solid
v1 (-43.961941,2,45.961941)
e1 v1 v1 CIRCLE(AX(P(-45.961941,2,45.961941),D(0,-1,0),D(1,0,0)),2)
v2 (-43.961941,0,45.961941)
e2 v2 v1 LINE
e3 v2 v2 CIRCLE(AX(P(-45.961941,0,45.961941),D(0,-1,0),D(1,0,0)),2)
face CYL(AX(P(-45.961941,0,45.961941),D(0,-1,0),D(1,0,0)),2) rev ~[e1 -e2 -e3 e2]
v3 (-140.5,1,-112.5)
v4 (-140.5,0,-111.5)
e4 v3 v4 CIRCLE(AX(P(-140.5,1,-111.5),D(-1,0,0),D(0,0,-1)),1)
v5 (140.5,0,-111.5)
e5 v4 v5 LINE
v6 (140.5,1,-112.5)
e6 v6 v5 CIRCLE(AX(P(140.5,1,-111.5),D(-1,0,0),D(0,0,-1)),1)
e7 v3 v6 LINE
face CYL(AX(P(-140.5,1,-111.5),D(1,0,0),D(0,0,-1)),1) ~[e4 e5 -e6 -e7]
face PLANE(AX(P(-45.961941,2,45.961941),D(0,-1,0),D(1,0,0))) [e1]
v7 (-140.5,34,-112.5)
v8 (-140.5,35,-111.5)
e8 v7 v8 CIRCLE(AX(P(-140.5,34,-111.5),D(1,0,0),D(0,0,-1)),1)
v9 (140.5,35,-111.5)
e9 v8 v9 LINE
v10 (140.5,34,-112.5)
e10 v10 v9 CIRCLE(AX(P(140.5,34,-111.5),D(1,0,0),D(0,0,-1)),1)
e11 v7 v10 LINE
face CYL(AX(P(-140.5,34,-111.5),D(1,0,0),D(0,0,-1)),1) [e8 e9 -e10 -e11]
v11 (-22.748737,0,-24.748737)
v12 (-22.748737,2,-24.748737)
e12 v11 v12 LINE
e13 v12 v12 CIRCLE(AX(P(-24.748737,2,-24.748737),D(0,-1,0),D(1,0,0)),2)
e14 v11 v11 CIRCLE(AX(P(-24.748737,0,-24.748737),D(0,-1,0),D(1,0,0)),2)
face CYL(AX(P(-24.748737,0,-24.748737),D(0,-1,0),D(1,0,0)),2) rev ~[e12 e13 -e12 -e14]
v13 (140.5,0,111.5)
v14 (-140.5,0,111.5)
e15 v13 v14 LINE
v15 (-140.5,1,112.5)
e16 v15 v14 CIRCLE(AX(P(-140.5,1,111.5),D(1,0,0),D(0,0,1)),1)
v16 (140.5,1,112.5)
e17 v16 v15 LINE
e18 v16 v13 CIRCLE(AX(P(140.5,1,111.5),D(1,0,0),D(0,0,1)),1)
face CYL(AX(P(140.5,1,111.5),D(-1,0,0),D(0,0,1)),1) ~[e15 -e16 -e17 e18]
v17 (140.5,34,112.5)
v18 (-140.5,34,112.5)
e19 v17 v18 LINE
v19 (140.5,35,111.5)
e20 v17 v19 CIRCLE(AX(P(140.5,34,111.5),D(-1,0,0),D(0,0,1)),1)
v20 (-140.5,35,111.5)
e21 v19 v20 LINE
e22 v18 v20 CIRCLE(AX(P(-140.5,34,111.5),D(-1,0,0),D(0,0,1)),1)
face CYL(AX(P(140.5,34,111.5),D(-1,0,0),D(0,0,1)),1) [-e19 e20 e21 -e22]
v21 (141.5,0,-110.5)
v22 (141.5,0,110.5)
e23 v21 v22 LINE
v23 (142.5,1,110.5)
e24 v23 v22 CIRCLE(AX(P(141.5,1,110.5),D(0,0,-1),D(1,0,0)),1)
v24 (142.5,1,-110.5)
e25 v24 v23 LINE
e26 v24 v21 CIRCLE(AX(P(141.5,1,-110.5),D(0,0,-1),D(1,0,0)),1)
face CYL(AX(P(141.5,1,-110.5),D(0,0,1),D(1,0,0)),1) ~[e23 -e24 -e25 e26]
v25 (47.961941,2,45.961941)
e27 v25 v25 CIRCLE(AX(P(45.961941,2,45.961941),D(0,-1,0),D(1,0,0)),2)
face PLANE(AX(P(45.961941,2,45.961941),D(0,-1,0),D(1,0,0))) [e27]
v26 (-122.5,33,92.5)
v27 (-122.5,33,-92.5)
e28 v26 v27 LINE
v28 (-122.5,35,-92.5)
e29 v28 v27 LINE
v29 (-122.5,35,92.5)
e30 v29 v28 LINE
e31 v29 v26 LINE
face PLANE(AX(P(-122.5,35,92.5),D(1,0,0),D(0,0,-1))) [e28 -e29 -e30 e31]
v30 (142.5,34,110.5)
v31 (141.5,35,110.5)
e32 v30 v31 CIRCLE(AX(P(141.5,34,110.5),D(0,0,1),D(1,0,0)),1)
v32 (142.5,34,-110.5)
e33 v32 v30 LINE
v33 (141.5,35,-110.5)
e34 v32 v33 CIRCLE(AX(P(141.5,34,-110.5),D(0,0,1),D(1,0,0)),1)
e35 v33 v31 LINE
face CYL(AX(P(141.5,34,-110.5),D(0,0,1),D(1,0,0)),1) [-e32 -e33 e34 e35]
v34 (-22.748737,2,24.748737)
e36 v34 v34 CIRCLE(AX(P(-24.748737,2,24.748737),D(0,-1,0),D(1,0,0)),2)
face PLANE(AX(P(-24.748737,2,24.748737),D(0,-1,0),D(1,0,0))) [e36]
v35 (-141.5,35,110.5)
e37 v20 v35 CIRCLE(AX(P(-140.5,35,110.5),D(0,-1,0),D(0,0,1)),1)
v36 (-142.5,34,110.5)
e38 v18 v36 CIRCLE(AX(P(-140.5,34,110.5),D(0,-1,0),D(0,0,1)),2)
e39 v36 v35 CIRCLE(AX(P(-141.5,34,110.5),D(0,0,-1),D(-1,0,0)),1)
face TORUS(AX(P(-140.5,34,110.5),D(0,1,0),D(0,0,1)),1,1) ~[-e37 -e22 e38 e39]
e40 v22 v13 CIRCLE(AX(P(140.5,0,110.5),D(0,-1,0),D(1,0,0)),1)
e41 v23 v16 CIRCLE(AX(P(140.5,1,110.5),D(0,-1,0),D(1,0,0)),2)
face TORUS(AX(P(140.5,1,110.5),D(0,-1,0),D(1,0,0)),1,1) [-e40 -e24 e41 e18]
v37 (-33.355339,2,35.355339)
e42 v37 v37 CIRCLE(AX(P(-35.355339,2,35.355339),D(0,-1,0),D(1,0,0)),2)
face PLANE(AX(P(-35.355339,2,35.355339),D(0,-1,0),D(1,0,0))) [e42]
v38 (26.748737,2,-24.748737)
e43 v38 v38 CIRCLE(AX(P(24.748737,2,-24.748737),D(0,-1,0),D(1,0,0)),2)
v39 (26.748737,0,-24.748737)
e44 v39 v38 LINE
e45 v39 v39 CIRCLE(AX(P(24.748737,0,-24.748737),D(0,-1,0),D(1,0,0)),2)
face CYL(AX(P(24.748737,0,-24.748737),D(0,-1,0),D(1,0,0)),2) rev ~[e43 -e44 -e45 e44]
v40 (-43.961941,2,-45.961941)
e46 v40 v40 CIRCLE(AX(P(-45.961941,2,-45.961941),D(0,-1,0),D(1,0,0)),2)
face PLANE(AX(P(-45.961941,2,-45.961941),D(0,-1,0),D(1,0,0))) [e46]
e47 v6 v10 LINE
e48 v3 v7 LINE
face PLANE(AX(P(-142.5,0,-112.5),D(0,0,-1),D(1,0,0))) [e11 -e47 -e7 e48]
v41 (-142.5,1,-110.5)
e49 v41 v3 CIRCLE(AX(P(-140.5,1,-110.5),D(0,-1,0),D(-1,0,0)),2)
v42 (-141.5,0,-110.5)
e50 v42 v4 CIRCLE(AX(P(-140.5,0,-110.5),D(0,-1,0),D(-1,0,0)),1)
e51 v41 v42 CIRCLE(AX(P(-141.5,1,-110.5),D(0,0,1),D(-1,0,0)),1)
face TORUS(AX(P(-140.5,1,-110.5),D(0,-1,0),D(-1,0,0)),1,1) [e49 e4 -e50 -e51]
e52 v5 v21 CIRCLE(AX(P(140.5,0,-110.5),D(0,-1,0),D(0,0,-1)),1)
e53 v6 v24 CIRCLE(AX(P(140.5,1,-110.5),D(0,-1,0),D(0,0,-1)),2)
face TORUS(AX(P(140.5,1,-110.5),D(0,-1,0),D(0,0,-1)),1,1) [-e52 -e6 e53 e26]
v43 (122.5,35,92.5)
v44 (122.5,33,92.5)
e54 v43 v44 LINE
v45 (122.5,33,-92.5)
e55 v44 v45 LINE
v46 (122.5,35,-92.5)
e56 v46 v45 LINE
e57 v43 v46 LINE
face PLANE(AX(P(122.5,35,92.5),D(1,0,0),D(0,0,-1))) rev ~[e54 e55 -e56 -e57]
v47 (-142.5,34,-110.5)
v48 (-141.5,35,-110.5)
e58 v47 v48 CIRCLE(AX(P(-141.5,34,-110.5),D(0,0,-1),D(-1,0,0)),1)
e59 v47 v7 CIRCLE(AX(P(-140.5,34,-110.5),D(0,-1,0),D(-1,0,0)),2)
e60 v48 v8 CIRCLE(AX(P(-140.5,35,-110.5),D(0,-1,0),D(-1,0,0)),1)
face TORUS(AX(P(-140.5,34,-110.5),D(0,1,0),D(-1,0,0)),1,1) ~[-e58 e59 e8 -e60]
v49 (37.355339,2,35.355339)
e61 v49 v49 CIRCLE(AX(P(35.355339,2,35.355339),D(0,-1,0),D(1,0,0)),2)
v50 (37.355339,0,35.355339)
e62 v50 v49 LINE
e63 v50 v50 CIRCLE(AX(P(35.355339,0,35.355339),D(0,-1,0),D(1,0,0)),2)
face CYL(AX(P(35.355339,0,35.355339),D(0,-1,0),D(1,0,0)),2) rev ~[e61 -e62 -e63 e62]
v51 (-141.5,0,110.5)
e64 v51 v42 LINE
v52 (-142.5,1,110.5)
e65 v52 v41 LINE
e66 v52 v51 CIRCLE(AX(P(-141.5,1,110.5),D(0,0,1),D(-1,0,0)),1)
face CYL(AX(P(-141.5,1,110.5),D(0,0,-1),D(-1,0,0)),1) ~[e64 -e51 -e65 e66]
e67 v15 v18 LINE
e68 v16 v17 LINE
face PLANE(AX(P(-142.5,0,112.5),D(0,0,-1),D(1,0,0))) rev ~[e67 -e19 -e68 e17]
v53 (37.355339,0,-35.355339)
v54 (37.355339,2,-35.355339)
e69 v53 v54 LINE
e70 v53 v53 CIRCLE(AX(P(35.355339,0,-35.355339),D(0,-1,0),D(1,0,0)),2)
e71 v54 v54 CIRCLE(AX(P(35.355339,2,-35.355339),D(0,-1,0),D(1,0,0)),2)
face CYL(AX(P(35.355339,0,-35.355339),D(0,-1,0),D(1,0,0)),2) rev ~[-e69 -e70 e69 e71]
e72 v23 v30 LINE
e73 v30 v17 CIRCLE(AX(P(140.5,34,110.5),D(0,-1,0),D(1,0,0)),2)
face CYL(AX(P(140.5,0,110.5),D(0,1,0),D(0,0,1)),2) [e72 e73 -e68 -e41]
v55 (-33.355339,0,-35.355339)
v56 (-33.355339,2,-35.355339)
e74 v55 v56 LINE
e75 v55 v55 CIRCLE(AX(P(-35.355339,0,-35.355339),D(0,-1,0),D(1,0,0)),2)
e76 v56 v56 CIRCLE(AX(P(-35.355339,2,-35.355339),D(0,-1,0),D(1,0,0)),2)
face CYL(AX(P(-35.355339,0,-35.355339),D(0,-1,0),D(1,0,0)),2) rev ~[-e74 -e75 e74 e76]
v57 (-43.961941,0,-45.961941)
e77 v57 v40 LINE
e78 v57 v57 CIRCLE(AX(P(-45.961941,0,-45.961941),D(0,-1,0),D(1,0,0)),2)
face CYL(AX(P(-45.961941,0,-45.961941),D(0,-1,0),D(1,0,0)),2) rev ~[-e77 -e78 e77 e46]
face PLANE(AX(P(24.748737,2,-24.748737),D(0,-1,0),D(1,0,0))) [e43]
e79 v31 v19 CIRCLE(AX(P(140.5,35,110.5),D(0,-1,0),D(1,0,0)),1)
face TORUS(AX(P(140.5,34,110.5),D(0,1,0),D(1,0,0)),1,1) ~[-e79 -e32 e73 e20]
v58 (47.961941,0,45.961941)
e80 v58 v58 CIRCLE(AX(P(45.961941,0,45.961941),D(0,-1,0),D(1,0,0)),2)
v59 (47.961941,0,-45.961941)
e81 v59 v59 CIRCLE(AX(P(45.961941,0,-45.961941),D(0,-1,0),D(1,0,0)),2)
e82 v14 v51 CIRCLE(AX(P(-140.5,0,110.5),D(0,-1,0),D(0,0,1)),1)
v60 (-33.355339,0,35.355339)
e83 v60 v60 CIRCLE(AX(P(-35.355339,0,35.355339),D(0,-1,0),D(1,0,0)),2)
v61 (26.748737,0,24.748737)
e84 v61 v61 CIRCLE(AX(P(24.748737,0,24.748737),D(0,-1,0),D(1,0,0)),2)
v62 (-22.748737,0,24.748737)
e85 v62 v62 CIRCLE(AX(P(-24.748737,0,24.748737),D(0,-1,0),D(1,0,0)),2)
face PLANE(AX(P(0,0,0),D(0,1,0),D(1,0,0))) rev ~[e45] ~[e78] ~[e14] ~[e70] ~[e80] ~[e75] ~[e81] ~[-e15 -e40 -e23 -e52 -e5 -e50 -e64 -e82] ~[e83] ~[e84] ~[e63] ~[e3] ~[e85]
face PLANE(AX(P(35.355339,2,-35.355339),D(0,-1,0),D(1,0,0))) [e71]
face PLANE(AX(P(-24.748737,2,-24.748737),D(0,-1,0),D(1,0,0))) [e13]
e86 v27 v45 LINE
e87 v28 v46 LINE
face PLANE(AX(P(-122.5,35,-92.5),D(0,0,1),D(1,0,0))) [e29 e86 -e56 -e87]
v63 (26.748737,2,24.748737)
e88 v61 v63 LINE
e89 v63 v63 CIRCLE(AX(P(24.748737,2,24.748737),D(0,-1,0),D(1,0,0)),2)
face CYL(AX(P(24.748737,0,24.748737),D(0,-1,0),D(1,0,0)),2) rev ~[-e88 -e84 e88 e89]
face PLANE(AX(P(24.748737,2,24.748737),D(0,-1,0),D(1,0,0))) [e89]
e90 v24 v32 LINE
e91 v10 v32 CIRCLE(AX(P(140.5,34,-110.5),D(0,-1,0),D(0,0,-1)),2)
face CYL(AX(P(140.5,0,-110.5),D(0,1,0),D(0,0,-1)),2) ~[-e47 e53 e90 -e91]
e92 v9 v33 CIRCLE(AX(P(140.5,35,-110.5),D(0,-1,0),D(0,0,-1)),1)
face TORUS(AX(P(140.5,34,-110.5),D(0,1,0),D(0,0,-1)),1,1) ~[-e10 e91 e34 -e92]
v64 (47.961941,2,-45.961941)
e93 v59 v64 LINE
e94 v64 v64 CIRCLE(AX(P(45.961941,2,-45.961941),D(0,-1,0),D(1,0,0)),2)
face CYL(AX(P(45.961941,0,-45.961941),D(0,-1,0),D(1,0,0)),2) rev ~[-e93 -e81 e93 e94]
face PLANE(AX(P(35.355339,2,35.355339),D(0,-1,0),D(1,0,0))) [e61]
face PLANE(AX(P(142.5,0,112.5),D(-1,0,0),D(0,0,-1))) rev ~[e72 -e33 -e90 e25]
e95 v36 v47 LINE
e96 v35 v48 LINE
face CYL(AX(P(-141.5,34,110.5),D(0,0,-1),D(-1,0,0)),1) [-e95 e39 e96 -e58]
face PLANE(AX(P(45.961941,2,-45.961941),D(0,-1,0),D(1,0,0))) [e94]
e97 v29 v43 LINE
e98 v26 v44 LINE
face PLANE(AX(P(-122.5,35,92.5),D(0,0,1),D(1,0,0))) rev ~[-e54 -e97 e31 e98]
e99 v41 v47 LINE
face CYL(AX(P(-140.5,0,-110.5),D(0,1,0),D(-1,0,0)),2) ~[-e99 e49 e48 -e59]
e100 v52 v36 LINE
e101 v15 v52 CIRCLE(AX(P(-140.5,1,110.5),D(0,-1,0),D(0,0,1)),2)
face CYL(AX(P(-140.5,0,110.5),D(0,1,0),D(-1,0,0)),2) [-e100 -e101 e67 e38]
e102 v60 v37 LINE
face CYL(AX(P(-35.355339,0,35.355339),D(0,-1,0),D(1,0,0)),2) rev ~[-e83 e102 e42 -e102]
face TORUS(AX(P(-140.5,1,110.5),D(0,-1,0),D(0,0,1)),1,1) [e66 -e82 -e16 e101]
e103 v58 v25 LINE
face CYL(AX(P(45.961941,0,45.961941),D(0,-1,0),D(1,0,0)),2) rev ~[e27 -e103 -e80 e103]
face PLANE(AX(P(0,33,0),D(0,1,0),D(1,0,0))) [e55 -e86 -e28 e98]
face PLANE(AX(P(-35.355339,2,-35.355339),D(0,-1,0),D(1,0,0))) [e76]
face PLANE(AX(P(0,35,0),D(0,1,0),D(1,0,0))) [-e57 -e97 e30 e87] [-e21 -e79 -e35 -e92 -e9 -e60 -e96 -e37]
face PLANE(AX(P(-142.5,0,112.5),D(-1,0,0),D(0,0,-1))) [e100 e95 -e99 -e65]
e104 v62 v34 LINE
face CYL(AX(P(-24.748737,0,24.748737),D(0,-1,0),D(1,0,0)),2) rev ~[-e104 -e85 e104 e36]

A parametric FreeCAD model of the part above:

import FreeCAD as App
import Part
import Sketcher
Q = App.Units.Quantity


def edges_at(feature, points):
    """Names of the edges that pass closest to the given points."""
    edges = feature.Shape.Edges
    near = lambda p: min(range(len(edges)), key=lambda i: edges[i].distToShape(Part.Vertex(*p))[0])
    return sorted({f"Edge{near(p) + 1}" for p in points})


def add_polygon(sketch, points):
    """Adds a closed chain of lines whose ends are joined by coincident constraints."""
    first, n = sketch.GeometryCount, len(points)
    for a, b in zip(points, points[1:] + points[:1]):
        sketch.addGeometry(Part.LineSegment(App.Vector(*a, 0), App.Vector(*b, 0)), False)
    for i in range(n):
        sketch.addConstraint(Sketcher.Constraint("Coincident", first + i, 2, first + (i + 1) % n, 1))

doc = App.newDocument("Part")
body = doc.addObject("PartDesign::Body", "Body")

sketch1 = doc.addObject("Sketcher::SketchObject", "Sketch")
body.addObject(sketch1)
sketch1.AttachmentSupport = (doc.XZ_Plane, [""])
sketch1.MapMode = "FlatFace"
add_polygon(sketch1, [(-142, -112), (-142, 112), (142, 112), (142, -112)])
sketch1.addConstraint([
    Sketcher.Constraint("Vertical", 0),
    Sketcher.Constraint("Horizontal", 1),
    Sketcher.Constraint("Vertical", 2),
    Sketcher.Constraint("Horizontal", 3),
    Sketcher.Constraint("Symmetric", 0, 2, 2, 2, -1, 1),
    Sketcher.Constraint("DistanceX", 1, 1, 1, 2, Q("285 mm")),
    Sketcher.Constraint("DistanceY", 0, 1, 0, 2, Q("225 mm")),
])
pad1 = doc.addObject("PartDesign::Pad", "Pad")
body.addObject(pad1)
pad1.Profile = sketch1
pad1.Length = 35
pad1.Reversed = True

sketch2 = doc.addObject("Sketcher::SketchObject", "Sketch001")
body.addObject(sketch2)
sketch2.AttachmentSupport = (doc.XZ_Plane, [""])
sketch2.MapMode = "FlatFace"
sketch2.AttachmentOffset = App.Placement(App.Vector(0, 0, -35), App.Rotation())
add_polygon(sketch2, [(-122, -92), (-122, 92), (122, 92), (122, -92)])
sketch2.addConstraint([
    Sketcher.Constraint("Vertical", 0),
    Sketcher.Constraint("Horizontal", 1),
    Sketcher.Constraint("Vertical", 2),
    Sketcher.Constraint("Horizontal", 3),
    Sketcher.Constraint("Symmetric", 0, 2, 2, 2, -1, 1),
    Sketcher.Constraint("DistanceX", 1, 1, 1, 2, Q("245 mm")),
    Sketcher.Constraint("DistanceY", 0, 1, 0, 2, Q("185 mm")),
])
pocket1 = doc.addObject("PartDesign::Pocket", "Pocket")
body.addObject(pocket1)
pocket1.Profile = sketch2
pocket1.Length = 2
pocket1.Reversed = True
doc.recompute()

fillet = doc.addObject("PartDesign::Fillet", "Fillet")
body.addObject(fillet)
fillet.Base = (pocket1, edges_at(pocket1, [
    (142.5, 17.5, 112.5),
    (-142.5, 17.5, 112.5),
    (-142.5, 17.5, -112.5),
    (142.5, 17.5, -112.5),
]))
fillet.Radius = 2
doc.recompute()

fillet2 = doc.addObject("PartDesign::Fillet", "Fillet001")
body.addObject(fillet2)
fillet2.Base = (fillet, edges_at(fillet, [
    (-142.5, 35, 0),
    (0, 35, -112.5),
    (142.5, 35, 0),
    (0, 35, 112.5),
    (141.914, 35, 111.914),
    (141.914, 35, -111.914),
    (-141.914, 35, 111.914),
    (-141.914, 35, -111.914),
]))
fillet2.Radius = 1
doc.recompute()

fillet3 = doc.addObject("PartDesign::Fillet", "Fillet002")
body.addObject(fillet3)
fillet3.Base = (fillet2, edges_at(fillet2, [
    (-142.5, 0, 0),
    (142.5, 0, 0),
    (0, 0, 112.5),
    (0, 0, -112.5),
    (141.914, 0, 111.914),
    (141.914, 0, -111.914),
    (-141.914, 0, 111.914),
    (-141.914, 0, -111.914),
]))
fillet3.Radius = 1

sketch3 = doc.addObject("Sketcher::SketchObject", "Sketch002")
body.addObject(sketch3)
sketch3.AttachmentSupport = (doc.XZ_Plane, [""])
sketch3.MapMode = "FlatFace"
sketch3.addGeometry([
    Part.Circle(App.Vector(-24.7, 24.7, 0), App.Vector(0, 0, 1), 2),
    Part.Circle(App.Vector(-35.4, 35.4, 0), App.Vector(0, 0, 1), 2),
    Part.Circle(App.Vector(-46, 46, 0), App.Vector(0, 0, 1), 2),
    Part.Circle(App.Vector(24.7, 24.7, 0), App.Vector(0, 0, 1), 2),
    Part.Circle(App.Vector(35.4, 35.4, 0), App.Vector(0, 0, 1), 2),
    Part.Circle(App.Vector(46, 46, 0), App.Vector(0, 0, 1), 2),
    Part.Circle(App.Vector(24.7, -24.7, 0), App.Vector(0, 0, 1), 2),
    Part.Circle(App.Vector(35.4, -35.4, 0), App.Vector(0, 0, 1), 2),
    Part.Circle(App.Vector(46, -46, 0), App.Vector(0, 0, 1), 2),
    Part.Circle(App.Vector(-24.7, -24.7, 0), App.Vector(0, 0, 1), 2),
    Part.Circle(App.Vector(-35.4, -35.4, 0), App.Vector(0, 0, 1), 2),
    Part.Circle(App.Vector(-46, -46, 0), App.Vector(0, 0, 1), 2),
], False)
sketch3.addConstraint([
    Sketcher.Constraint("Equal", 0, 1),
    Sketcher.Constraint("Equal", 1, 2),
    Sketcher.Constraint("Equal", 2, 3),
    Sketcher.Constraint("Equal", 3, 4),
    Sketcher.Constraint("Equal", 4, 5),
    Sketcher.Constraint("Equal", 5, 6),
    Sketcher.Constraint("Equal", 6, 7),
    Sketcher.Constraint("Equal", 7, 8),
    Sketcher.Constraint("Equal", 8, 9),
    Sketcher.Constraint("Equal", 9, 10),
    Sketcher.Constraint("Equal", 10, 11),
    Sketcher.Constraint("Symmetric", 0, 3, 6, 3, -1, 1),
    Sketcher.Constraint("Symmetric", 1, 3, 7, 3, -1, 1),
    Sketcher.Constraint("Symmetric", 2, 3, 8, 3, -1, 1),
    Sketcher.Constraint("Symmetric", 3, 3, 9, 3, -1, 1),
    Sketcher.Constraint("Symmetric", 4, 3, 10, 3, -1, 1),
    Sketcher.Constraint("Symmetric", 5, 3, 11, 3, -1, 1),
    Sketcher.Constraint("Symmetric", 0, 3, 3, 3, -2),
    Sketcher.Constraint("Symmetric", 1, 3, 4, 3, -2),
    Sketcher.Constraint("Symmetric", 2, 3, 5, 3, -2),
    Sketcher.Constraint("Diameter", 0, Q("4 mm")),
    Sketcher.Constraint("DistanceX", 1, 3, 0, 3, Q("10.606602 mm")),
    Sketcher.Constraint("DistanceY", 0, 3, 1, 3, Q("10.606602 mm")),
    Sketcher.Constraint("DistanceX", 2, 3, 1, 3, Q("10.606602 mm")),
    Sketcher.Constraint("DistanceY", 1, 3, 2, 3, Q("10.606602 mm")),
    Sketcher.Constraint("DistanceX", 1, 3, -1, 1, Q("35.355339 mm")),
    Sketcher.Constraint("DistanceY", -1, 1, 1, 3, Q("35.355339 mm")),
])
pocket2 = doc.addObject("PartDesign::Pocket", "Pocket001")
body.addObject(pocket2)
pocket2.Profile = sketch3
pocket2.Length = 2

doc.recompute()
